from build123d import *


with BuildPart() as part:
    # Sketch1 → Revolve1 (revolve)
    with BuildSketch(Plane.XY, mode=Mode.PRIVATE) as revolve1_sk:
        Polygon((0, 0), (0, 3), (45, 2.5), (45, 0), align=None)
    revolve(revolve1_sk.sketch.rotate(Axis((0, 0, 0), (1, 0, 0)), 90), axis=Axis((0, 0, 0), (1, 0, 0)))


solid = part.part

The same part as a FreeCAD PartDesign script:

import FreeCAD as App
import Part
import Sketcher
from FreeCAD import Vector
Q = App.Units.Quantity

doc = App.newDocument("Part")
body = doc.addObject("PartDesign::Body", "Body")

sketch1 = body.newObject("Sketcher::SketchObject", "Sketch")
sketch1.AttachmentSupport = (doc.getObject("XY_Plane"), [""])
sketch1.MapMode = "FlatFace"
sketch1.addGeometry(Part.LineSegment(Vector(0, 3, 0), Vector(0, 0, 0)), False)
sketch1.addGeometry(Part.LineSegment(Vector(0, 0, 0), Vector(45, 0, 0)), False)
sketch1.addGeometry(Part.LineSegment(Vector(45, 0, 0), Vector(45, 2.5, 0)), False)
sketch1.addGeometry(Part.LineSegment(Vector(45, 2.5, 0), Vector(0, 3, 0)), False)
sketch1.addConstraint(Sketcher.Constraint("Coincident", 0, 2, 1, 1))
sketch1.addConstraint(Sketcher.Constraint("Coincident", 1, 2, 2, 1))
sketch1.addConstraint(Sketcher.Constraint("Coincident", 2, 2, 3, 1))
sketch1.addConstraint(Sketcher.Constraint("Coincident", 3, 2, 0, 1))
sketch1.addConstraint(Sketcher.Constraint("Vertical", 0))
sketch1.addConstraint(Sketcher.Constraint("Horizontal", 1))
sketch1.addConstraint(Sketcher.Constraint("Vertical", 2))
sketch1.addConstraint(Sketcher.Constraint("Coincident", 0, 2, -1, 1))
sketch1.addConstraint(Sketcher.Constraint("DistanceX", 1, 1, 1, 2, Q("45 mm")))
sketch1.addConstraint(Sketcher.Constraint("DistanceY", 0, 2, 0, 1, Q("3 mm")))
sketch1.addConstraint(Sketcher.Constraint("DistanceY", 2, 1, 2, 2, Q("2.5 mm")))
revolution = body.newObject("PartDesign::Revolution", "Revolution")
revolution.Profile = sketch1
revolution.ReferenceAxis = (sketch1, ["H_Axis"])
revolution.Angle = 360

doc.recompute()
